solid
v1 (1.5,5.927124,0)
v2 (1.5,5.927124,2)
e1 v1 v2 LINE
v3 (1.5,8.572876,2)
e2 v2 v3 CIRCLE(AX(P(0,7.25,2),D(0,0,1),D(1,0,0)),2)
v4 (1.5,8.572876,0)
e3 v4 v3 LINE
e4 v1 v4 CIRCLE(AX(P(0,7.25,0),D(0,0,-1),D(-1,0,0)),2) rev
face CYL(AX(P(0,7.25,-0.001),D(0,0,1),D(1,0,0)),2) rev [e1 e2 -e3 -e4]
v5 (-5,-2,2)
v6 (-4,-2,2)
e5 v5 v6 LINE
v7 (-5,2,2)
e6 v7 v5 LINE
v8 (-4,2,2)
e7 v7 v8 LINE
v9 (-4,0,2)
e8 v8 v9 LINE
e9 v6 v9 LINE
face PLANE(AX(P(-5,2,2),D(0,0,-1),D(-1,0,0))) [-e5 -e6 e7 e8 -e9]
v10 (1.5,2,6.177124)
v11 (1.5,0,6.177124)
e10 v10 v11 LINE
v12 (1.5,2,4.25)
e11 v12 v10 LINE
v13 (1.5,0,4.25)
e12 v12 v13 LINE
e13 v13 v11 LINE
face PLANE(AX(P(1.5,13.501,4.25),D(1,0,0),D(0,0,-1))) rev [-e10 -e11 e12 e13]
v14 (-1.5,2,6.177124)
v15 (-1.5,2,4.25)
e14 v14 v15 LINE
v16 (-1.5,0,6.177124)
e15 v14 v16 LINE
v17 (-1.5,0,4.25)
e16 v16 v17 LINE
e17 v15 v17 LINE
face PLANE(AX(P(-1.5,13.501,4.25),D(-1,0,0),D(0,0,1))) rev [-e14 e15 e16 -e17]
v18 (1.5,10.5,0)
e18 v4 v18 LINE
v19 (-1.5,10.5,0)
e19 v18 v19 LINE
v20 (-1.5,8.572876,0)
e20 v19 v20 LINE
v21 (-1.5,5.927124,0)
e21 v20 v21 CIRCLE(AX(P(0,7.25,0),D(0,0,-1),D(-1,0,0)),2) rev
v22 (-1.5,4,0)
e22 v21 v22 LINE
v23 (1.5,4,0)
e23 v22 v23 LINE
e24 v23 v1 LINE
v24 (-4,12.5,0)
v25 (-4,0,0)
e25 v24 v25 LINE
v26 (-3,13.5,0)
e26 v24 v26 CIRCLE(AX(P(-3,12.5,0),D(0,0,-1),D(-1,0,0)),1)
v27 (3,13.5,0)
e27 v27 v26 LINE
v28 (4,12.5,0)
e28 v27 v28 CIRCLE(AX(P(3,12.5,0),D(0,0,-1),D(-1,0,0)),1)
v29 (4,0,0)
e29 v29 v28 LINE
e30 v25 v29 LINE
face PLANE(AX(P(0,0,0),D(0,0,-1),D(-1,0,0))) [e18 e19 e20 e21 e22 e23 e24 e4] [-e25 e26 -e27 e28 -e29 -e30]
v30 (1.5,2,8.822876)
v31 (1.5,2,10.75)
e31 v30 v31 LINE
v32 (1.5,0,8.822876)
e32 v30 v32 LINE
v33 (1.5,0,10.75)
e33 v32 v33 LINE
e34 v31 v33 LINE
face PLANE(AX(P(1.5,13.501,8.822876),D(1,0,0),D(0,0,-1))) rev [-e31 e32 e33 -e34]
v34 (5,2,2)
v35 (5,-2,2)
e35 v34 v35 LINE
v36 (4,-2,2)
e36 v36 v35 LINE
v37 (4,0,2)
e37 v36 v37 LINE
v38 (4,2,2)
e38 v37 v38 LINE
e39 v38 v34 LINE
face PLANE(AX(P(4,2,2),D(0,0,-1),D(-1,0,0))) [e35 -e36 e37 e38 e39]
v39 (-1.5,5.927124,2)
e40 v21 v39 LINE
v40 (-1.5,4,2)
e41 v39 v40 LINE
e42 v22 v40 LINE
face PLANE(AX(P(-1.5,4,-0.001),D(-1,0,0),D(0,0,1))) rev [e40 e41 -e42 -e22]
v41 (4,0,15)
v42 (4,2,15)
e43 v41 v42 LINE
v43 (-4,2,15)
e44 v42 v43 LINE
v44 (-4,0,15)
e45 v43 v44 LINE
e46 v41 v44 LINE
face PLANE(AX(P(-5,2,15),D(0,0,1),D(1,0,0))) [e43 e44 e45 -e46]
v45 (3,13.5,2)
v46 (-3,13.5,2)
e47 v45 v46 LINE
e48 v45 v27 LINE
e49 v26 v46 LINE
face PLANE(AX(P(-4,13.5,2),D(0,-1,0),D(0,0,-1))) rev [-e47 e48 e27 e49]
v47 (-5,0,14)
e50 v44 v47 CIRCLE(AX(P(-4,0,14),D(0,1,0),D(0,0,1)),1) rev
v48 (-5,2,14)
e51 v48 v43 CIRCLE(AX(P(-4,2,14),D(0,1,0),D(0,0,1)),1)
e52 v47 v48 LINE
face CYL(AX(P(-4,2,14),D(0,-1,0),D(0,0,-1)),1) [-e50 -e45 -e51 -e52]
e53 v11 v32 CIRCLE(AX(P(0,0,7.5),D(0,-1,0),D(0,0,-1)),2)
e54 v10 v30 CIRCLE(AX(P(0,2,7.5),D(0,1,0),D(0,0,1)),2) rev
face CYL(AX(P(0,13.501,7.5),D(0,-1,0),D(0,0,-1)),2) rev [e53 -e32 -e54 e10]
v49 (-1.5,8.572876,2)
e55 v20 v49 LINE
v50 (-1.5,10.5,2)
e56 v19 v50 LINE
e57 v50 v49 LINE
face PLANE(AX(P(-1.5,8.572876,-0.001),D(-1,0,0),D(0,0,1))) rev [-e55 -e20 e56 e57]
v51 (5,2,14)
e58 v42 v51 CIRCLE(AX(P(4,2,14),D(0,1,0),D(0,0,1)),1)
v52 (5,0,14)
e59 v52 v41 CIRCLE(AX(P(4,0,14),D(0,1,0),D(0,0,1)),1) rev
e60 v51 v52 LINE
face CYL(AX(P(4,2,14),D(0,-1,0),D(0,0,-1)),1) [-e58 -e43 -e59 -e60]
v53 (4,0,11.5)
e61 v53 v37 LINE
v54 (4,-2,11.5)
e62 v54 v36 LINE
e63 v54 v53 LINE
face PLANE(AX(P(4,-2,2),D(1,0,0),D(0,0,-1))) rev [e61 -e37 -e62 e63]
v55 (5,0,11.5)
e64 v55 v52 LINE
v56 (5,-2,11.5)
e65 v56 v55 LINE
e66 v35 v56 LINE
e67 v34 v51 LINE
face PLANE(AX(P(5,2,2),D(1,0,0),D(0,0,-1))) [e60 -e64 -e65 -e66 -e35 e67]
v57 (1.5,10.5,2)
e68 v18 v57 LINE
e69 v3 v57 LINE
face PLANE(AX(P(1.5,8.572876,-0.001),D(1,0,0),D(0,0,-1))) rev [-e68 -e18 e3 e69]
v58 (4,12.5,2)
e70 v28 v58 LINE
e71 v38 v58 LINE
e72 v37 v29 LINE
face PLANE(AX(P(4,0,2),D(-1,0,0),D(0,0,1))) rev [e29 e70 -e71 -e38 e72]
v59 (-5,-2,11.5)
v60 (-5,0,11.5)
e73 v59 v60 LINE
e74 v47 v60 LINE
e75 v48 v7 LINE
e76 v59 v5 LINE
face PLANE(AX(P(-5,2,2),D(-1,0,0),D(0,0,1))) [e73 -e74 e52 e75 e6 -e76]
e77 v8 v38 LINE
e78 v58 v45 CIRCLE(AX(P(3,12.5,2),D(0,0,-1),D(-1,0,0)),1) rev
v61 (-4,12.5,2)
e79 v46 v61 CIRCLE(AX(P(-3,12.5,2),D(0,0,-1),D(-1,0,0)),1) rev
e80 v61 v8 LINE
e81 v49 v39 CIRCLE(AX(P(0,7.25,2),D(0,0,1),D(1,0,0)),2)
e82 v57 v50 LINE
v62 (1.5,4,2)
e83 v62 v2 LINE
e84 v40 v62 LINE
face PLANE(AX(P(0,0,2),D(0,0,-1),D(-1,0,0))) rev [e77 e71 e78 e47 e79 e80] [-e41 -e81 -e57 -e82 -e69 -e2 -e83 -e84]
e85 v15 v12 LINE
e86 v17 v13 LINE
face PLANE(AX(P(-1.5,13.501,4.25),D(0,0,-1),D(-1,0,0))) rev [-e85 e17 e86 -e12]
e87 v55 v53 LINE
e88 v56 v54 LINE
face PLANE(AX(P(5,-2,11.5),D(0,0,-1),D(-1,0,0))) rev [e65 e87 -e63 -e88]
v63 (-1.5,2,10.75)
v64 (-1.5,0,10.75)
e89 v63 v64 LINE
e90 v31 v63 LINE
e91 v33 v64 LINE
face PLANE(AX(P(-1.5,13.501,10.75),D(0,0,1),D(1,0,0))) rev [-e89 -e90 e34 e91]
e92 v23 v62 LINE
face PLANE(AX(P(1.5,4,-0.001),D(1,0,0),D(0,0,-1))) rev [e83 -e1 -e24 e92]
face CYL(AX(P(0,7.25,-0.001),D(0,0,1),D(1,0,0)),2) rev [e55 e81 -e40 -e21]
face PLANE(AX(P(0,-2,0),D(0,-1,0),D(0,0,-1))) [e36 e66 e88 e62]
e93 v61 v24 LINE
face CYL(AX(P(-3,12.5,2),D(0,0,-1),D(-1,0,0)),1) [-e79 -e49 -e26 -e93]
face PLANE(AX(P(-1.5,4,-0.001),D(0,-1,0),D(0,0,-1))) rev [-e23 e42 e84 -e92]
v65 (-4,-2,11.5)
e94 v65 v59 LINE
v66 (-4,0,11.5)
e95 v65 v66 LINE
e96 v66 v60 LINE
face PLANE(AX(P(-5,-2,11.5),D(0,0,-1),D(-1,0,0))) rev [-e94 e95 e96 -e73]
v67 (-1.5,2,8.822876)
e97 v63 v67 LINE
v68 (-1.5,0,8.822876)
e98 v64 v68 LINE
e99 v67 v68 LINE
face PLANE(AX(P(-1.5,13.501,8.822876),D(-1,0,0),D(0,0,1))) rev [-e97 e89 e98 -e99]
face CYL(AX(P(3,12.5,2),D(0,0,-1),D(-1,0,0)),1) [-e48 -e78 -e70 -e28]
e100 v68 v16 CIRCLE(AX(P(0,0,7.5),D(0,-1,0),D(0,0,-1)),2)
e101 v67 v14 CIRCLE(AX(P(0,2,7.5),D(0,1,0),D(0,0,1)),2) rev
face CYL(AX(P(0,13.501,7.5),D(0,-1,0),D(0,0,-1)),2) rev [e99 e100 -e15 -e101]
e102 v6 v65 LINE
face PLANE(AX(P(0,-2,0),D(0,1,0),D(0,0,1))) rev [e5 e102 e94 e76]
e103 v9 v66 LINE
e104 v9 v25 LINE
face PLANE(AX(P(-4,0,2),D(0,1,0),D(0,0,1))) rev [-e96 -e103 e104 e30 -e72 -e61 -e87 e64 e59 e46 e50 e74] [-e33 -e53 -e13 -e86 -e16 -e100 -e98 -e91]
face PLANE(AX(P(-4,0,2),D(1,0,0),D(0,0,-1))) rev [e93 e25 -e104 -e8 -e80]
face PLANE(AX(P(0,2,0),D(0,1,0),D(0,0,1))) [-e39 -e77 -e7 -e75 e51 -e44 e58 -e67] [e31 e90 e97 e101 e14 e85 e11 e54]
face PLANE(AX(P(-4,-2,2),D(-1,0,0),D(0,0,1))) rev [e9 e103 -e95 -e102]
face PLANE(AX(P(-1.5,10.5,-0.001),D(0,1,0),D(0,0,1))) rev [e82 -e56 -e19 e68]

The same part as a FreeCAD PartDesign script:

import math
import FreeCAD as App
import Part
import Sketcher
from FreeCAD import Vector


def edges_at(feature, points):
    """Names of the edges that pass closest to the given points."""
    edges = feature.Shape.Edges
    near = lambda p: min(range(len(edges)), key=lambda i: edges[i].distToShape(Part.Vertex(*p))[0])
    return sorted({f"Edge{near(p) + 1}" for p in points})


def add_polygon(sketch, points):
    """Adds a closed chain of lines whose ends are joined by coincident constraints."""
    first, n = sketch.GeometryCount, len(points)
    for a, b in zip(points, points[1:] + points[:1]):
        sketch.addGeometry(Part.LineSegment(App.Vector(*a, 0), App.Vector(*b, 0)), False)
    for i in range(n):
        sketch.addConstraint(Sketcher.Constraint("Coincident", first + i, 2, first + (i + 1) % n, 1))

doc = App.newDocument("Part")
body = doc.addObject("PartDesign::Body", "Body")

# Sketch on XY plane
sketch1 = doc.addObject("Sketcher::SketchObject", "Sketch")
body.addObject(sketch1)
sketch1.AttachmentSupport = (doc.XY_Plane, [""])
sketch1.MapMode = "FlatFace"
add_polygon(sketch1, [(-4, 14), (-4, 0), (4, 0), (4, 14)])  # lines 0-3
sketch1.addConstraint([
    Sketcher.Constraint("Vertical", 0),
    Sketcher.Constraint("Horizontal", 1),
    Sketcher.Constraint("Vertical", 2),
    Sketcher.Constraint("Horizontal", 3),
    Sketcher.Constraint("Symmetric", 0, 2, 1, 2, -1, 1),
    Sketcher.Constraint("DistanceX", 1, 1, 1, 2, 8.0),
    Sketcher.Constraint("DistanceY", 0, 2, 0, 1, 13.5),
])
pad1 = doc.addObject("PartDesign::Pad", "Pad")
body.addObject(pad1)
pad1.Profile = sketch1
pad1.Length = 2

# Sketch on XZ plane
sketch2 = doc.addObject("Sketcher::SketchObject", "Sketch001")
body.addObject(sketch2)
sketch2.AttachmentSupport = (doc.XZ_Plane, [""])
sketch2.MapMode = "FlatFace"
add_polygon(sketch2, [(4, 2), (5, 2), (5, 15), (-5, 15), (-5, 2), (-4, 2), (-4, 0), (4, 0)])  # lines 0-7
sketch2.addConstraint([
    Sketcher.Constraint("Horizontal", 0),
    Sketcher.Constraint("Vertical", 1),
    Sketcher.Constraint("Horizontal", 2),
    Sketcher.Constraint("Vertical", 3),
    Sketcher.Constraint("Horizontal", 4),
    Sketcher.Constraint("Vertical", 5),
    Sketcher.Constraint("Horizontal", 6),
    Sketcher.Constraint("Vertical", 7),
    Sketcher.Constraint("Symmetric", 5, 2, 6, 2, -1, 1),
    Sketcher.Constraint("Symmetric", 0, 2, 3, 2, -2),
    Sketcher.Constraint("DistanceX", 0, 1, 0, 2, 1.0),
    Sketcher.Constraint("DistanceX", 2, 2, 2, 1, 10.0),
    Sketcher.Constraint("DistanceY", 1, 1, 1, 2, 13.0),
    Sketcher.Constraint("DistanceY", 5, 2, 5, 1, 2.0),
])
pad2 = doc.addObject("PartDesign::Pad", "Pad001")
body.addObject(pad2)
pad2.Profile = sketch2
pad2.Length = 2
pad2.Reversed = True

# Sketch on XZ plane
sketch3 = doc.addObject("Sketcher::SketchObject", "Sketch002")
body.addObject(sketch3)
sketch3.AttachmentSupport = (doc.XZ_Plane, [""])
sketch3.MapMode = "FlatFace"
add_polygon(sketch3, [(-4, 2), (-4, 11.5), (-5, 11.5), (-5, 2)])  # lines 0-3
add_polygon(sketch3, [(5, 2), (5, 11.5), (4, 11.5), (4, 2)])  # lines 4-7
sketch3.addConstraint([
    Sketcher.Constraint("Vertical", 0),
    Sketcher.Constraint("Horizontal", 1),
    Sketcher.Constraint("Vertical", 2),
    Sketcher.Constraint("Horizontal", 3),
    Sketcher.Constraint("Vertical", 4),
    Sketcher.Constraint("Horizontal", 5),
    Sketcher.Constraint("Vertical", 6),
    Sketcher.Constraint("Horizontal", 7),
    Sketcher.Constraint("Symmetric", 1, 2, 4, 2, -2),
    Sketcher.Constraint("Symmetric", 3, 2, 6, 2, -2),
    Sketcher.Constraint("DistanceX", 1, 2, 1, 1, 1.0),
    Sketcher.Constraint("DistanceY", 0, 1, 0, 2, 9.5),
    Sketcher.Constraint("DistanceX", 0, 2, -1, 1, 4.0),
    Sketcher.Constraint("DistanceY", -1, 1, 2, 2, 2.0),
])
pad3 = doc.addObject("PartDesign::Pad", "Pad002")
body.addObject(pad3)
pad3.Profile = sketch3
pad3.Length = 2

# Sketch on XZ plane
sketch4 = doc.addObject("Sketcher::SketchObject", "Sketch003")
body.addObject(sketch4)
sketch4.AttachmentSupport = (doc.XZ_Plane, [""])
sketch4.MapMode = "FlatFace"
sketch4.addGeometry([
    Part.LineSegment(Vector(-1.5, 10.8, 0), Vector(-1.5, 8.8, 0)),  # 0
    Part.ArcOfCircle(Part.Circle(Vector(0, 7.5, 0), Vector(0, 0, 1), 2), math.radians(139), math.radians(221)),  # 1
    Part.LineSegment(Vector(-1.5, 6.2, 0), Vector(-1.5, 4.2, 0)),  # 2
    Part.LineSegment(Vector(-1.5, 4.2, 0), Vector(1.5, 4.2, 0)),  # 3
    Part.LineSegment(Vector(1.5, 4.2, 0), Vector(1.5, 6.2, 0)),  # 4
    Part.ArcOfCircle(Part.Circle(Vector(0, 7.5, 0), Vector(0, 0, 1), 2), math.radians(-41), math.radians(41)),  # 5
    Part.LineSegment(Vector(1.5, 8.8, 0), Vector(1.5, 10.8, 0)),  # 6
    Part.LineSegment(Vector(1.5, 10.8, 0), Vector(-1.5, 10.8, 0)),  # 7
], False)
sketch4.addConstraint([
    Sketcher.Constraint("Coincident", 0, 2, 1, 1),
    Sketcher.Constraint("Coincident", 1, 2, 2, 1),
    Sketcher.Constraint("Coincident", 2, 2, 3, 1),
    Sketcher.Constraint("Coincident", 3, 2, 4, 1),
    Sketcher.Constraint("Coincident", 4, 2, 5, 1),
    Sketcher.Constraint("Coincident", 5, 2, 6, 1),
    Sketcher.Constraint("Coincident", 6, 2, 7, 1),
    Sketcher.Constraint("Coincident", 7, 2, 0, 1),
    Sketcher.Constraint("Vertical", 0),
    Sketcher.Constraint("Vertical", 2),
    Sketcher.Constraint("Horizontal", 3),
    Sketcher.Constraint("Vertical", 4),
    Sketcher.Constraint("Vertical", 6),
    Sketcher.Constraint("Horizontal", 7),
    Sketcher.Constraint("Coincident", 5, 3, 1, 3),
    Sketcher.Constraint("Equal", 1, 5),
    Sketcher.Constraint("Symmetric", 1, 2, 4, 2, -2),
    Sketcher.Constraint("Horizontal", 0, 2, 5, 2),
    Sketcher.Constraint("Vertical", 0, 2, 1, 2),
    Sketcher.Constraint("Equal", 0, 2),
    Sketcher.Constraint("Radius", 1, 2.0),
    Sketcher.Constraint("DistanceX", 3, 1, 3, 2, 3.0),
    Sketcher.Constraint("DistanceY", -1, 1, 1, 3, 7.5),
    Sketcher.Constraint("DistanceY", -1, 1, 2, 2, 4.25),
])
pocket1 = doc.addObject("PartDesign::Pocket", "Pocket")
body.addObject(pocket1)
pocket1.Profile = sketch4
pocket1.Type = "UpToFirst"

# Sketch on XY plane
sketch5 = doc.addObject("Sketcher::SketchObject", "Sketch004")
body.addObject(sketch5)
sketch5.AttachmentSupport = (doc.XY_Plane, [""])
sketch5.MapMode = "FlatFace"
sketch5.AttachmentOffset = App.Placement(Vector(0, 0, 2), App.Rotation())
sketch5.addGeometry([
    Part.LineSegment(Vector(-1.5, 10.5, 0), Vector(-1.5, 8.6, 0)),  # 0
    Part.ArcOfCircle(Part.Circle(Vector(0, 7.2, 0), Vector(0, 0, 1), 2), math.radians(139), math.radians(221)),  # 1
    Part.LineSegment(Vector(-1.5, 5.9, 0), Vector(-1.5, 4, 0)),  # 2
    Part.LineSegment(Vector(-1.5, 4, 0), Vector(1.5, 4, 0)),  # 3
    Part.LineSegment(Vector(1.5, 4, 0), Vector(1.5, 5.9, 0)),  # 4
    Part.ArcOfCircle(Part.Circle(Vector(0, 7.2, 0), Vector(0, 0, 1), 2), math.radians(-41), math.radians(41)),  # 5
    Part.LineSegment(Vector(1.5, 8.6, 0), Vector(1.5, 10.5, 0)),  # 6
    Part.LineSegment(Vector(1.5, 10.5, 0), Vector(-1.5, 10.5, 0)),  # 7
], False)
sketch5.addConstraint([
    Sketcher.Constraint("Coincident", 0, 2, 1, 1),
    Sketcher.Constraint("Coincident", 1, 2, 2, 1),
    Sketcher.Constraint("Coincident", 2, 2, 3, 1),
    Sketcher.Constraint("Coincident", 3, 2, 4, 1),
    Sketcher.Constraint("Coincident", 4, 2, 5, 1),
    Sketcher.Constraint("Coincident", 5, 2, 6, 1),
    Sketcher.Constraint("Coincident", 6, 2, 7, 1),
    Sketcher.Constraint("Coincident", 7, 2, 0, 1),
    Sketcher.Constraint("Vertical", 0),
    Sketcher.Constraint("Vertical", 2),
    Sketcher.Constraint("Horizontal", 3),
    Sketcher.Constraint("Vertical", 4),
    Sketcher.Constraint("Vertical", 6),
    Sketcher.Constraint("Horizontal", 7),
    Sketcher.Constraint("Coincident", 5, 3, 1, 3),
    Sketcher.Constraint("Equal", 1, 5),
    Sketcher.Constraint("Symmetric", 1, 2, 4, 2, -2),
    Sketcher.Constraint("Horizontal", 0, 2, 5, 2),
    Sketcher.Constraint("Vertical", 0, 2, 1, 2),
    Sketcher.Constraint("Equal", 0, 2),
    Sketcher.Constraint("Radius", 1, 2.0),
    Sketcher.Constraint("DistanceX", 3, 1, 3, 2, 3.0),
    Sketcher.Constraint("DistanceY", -1, 1, 2, 2, 4.0),
    Sketcher.Constraint("DistanceY", -1, 1, 6, 2, 10.5),
])
pocket2 = doc.addObject("PartDesign::Pocket", "Pocket001")
body.addObject(pocket2)
pocket2.Profile = sketch5
pocket2.Type = "UpToFirst"
doc.recompute()

fillet = doc.addObject("PartDesign::Fillet", "Fillet")
body.addObject(fillet)
fillet.Base = (pocket2, edges_at(pocket2, [
    (-5, 1, 15),
    (5, 1, 15),
    (-4, 13.5, 1),
    (4, 13.5, 1),
]))
fillet.Radius = 1

doc.recompute()
